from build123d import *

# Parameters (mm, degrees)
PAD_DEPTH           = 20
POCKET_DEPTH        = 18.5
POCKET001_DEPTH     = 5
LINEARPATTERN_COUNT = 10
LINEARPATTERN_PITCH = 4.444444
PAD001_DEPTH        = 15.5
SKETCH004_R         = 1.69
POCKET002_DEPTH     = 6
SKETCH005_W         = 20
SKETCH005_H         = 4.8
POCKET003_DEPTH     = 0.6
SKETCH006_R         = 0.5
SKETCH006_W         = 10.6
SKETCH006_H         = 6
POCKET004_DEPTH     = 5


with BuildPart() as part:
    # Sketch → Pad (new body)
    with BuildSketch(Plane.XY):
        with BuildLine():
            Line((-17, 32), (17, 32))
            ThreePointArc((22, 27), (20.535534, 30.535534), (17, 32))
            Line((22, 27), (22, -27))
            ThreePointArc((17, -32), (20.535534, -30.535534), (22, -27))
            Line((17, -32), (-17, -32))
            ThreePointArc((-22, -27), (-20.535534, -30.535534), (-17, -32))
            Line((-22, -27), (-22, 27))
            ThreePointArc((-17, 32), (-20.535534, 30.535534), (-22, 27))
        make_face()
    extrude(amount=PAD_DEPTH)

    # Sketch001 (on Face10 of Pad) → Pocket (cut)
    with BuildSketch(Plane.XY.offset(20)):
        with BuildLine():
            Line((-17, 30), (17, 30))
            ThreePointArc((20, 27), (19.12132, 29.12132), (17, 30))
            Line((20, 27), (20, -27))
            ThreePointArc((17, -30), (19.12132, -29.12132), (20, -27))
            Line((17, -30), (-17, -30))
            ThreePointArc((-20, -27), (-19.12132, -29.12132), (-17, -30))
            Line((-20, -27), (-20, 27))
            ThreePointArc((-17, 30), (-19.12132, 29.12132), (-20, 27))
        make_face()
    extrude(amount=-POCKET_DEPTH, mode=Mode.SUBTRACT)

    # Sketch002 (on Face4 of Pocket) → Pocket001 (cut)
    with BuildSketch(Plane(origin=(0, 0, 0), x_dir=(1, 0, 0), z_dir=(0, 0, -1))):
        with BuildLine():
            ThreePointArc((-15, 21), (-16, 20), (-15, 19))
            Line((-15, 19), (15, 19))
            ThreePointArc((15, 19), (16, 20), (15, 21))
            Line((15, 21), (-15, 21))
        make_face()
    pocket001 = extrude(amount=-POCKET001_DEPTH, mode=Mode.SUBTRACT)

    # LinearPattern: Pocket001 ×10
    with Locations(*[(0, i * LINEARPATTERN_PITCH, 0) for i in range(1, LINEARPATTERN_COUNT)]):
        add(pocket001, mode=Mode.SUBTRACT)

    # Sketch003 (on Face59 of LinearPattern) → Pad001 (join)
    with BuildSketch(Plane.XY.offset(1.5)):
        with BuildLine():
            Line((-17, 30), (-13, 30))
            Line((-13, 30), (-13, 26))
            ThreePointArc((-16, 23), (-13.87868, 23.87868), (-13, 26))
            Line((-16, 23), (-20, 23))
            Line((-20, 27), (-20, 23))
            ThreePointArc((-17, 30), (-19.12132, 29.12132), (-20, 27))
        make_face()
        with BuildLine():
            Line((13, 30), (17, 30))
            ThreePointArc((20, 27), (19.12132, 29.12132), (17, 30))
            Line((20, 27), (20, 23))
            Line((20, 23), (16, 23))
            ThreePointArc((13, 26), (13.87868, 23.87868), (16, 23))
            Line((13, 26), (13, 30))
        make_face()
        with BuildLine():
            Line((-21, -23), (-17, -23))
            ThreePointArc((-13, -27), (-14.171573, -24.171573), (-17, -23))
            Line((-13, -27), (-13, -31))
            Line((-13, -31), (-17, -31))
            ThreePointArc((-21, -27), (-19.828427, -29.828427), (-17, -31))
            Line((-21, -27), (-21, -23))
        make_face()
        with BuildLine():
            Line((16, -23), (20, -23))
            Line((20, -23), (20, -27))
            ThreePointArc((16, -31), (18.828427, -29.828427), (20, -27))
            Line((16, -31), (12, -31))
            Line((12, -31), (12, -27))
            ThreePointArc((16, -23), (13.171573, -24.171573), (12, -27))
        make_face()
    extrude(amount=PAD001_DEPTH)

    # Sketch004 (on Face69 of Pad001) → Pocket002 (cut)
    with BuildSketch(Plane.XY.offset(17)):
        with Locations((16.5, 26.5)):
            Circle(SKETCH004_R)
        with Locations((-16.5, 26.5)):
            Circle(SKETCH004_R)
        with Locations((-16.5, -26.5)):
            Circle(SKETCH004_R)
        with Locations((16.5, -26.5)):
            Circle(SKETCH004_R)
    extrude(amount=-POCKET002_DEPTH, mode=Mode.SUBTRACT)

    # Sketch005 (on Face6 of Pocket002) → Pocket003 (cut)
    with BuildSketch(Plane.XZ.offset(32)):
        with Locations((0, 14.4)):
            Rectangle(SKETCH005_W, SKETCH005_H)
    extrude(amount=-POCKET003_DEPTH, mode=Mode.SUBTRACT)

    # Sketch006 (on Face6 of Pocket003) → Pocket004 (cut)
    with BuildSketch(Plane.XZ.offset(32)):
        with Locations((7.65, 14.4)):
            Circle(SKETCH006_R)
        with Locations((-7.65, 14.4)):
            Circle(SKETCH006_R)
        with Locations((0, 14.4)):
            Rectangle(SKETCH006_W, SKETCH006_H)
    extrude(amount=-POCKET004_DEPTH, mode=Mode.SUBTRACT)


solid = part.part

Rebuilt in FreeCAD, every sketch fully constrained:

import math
import FreeCAD as App
import Part
import Sketcher
Q = App.Units.Quantity


def add_polygon(sketch, points):
    """Adds a closed chain of lines whose ends are joined by coincident constraints."""
    first, n = sketch.GeometryCount, len(points)
    for a, b in zip(points, points[1:] + points[:1]):
        sketch.addGeometry(Part.LineSegment(App.Vector(*a, 0), App.Vector(*b, 0)), False)
    for i in range(n):
        sketch.addConstraint(Sketcher.Constraint("Coincident", first + i, 2, first + (i + 1) % n, 1))

doc = App.newDocument("Part")
body = doc.addObject("PartDesign::Body", "Body")

# Sketch on XY plane
sketch1 = doc.addObject("Sketcher::SketchObject", "Sketch")
body.addObject(sketch1)
sketch1.AttachmentSupport = (doc.XY_Plane, [""])
sketch1.MapMode = "FlatFace"
sketch1.addGeometry([
    Part.LineSegment(App.Vector(17, 32, 0), App.Vector(-17, 32, 0)),  # 0
    Part.ArcOfCircle(Part.Circle(App.Vector(-17, 27, 0), App.Vector(0, 0, 1), 5), math.radians(90), math.radians(180)),  # 1
    Part.LineSegment(App.Vector(-22, 27, 0), App.Vector(-22, -27, 0)),  # 2
    Part.ArcOfCircle(Part.Circle(App.Vector(-17, -27, 0), App.Vector(0, 0, 1), 5), math.radians(180), math.radians(270)),  # 3
    Part.LineSegment(App.Vector(-17, -32, 0), App.Vector(17, -32, 0)),  # 4
    Part.ArcOfCircle(Part.Circle(App.Vector(17, -27, 0), App.Vector(0, 0, 1), 5), math.radians(-90), math.radians(0)),  # 5
    Part.LineSegment(App.Vector(22, -27, 0), App.Vector(22, 27, 0)),  # 6
    Part.ArcOfCircle(Part.Circle(App.Vector(17, 27, 0), App.Vector(0, 0, 1), 5), math.radians(0), math.radians(90)),  # 7
], False)
sketch1.addConstraint([
    Sketcher.Constraint("Tangent", 0, 2, 1, 1),
    Sketcher.Constraint("Tangent", 1, 2, 2, 1),
    Sketcher.Constraint("Tangent", 2, 2, 3, 1),
    Sketcher.Constraint("Tangent", 3, 2, 4, 1),
    Sketcher.Constraint("Tangent", 4, 2, 5, 1),
    Sketcher.Constraint("Tangent", 5, 2, 6, 1),
    Sketcher.Constraint("Tangent", 6, 2, 7, 1),
    Sketcher.Constraint("Tangent", 7, 2, 0, 1),
    Sketcher.Constraint("Horizontal", 0),
    Sketcher.Constraint("Vertical", 2),
    Sketcher.Constraint("Horizontal", 4),
    Sketcher.Constraint("Vertical", 6),
    Sketcher.Constraint("Equal", 1, 3),
    Sketcher.Constraint("Equal", 3, 5),
    Sketcher.Constraint("Equal", 5, 7),
    Sketcher.Constraint("Symmetric", 1, 3, 5, 3, -1, 1),
    Sketcher.Constraint("Radius", 1, Q("5 mm")),
    Sketcher.Constraint("DistanceX", 0, 2, 0, 1, Q("34 mm")),
    Sketcher.Constraint("DistanceY", 2, 2, 2, 1, Q("54 mm")),
])
pad1 = doc.addObject("PartDesign::Pad", "Pad")
body.addObject(pad1)
pad1.Profile = sketch1
pad1.Length = 20

# Sketch on XY plane
sketch2 = doc.addObject("Sketcher::SketchObject", "Sketch001")
body.addObject(sketch2)
sketch2.AttachmentSupport = (doc.XY_Plane, [""])
sketch2.MapMode = "FlatFace"
sketch2.AttachmentOffset = App.Placement(App.Vector(0, 0, 20), App.Rotation())
sketch2.addGeometry([
    Part.LineSegment(App.Vector(17, 30, 0), App.Vector(-17, 30, 0)),  # 0
    Part.ArcOfCircle(Part.Circle(App.Vector(-17, 27, 0), App.Vector(0, 0, 1), 3), math.radians(90), math.radians(180)),  # 1
    Part.LineSegment(App.Vector(-20, 27, 0), App.Vector(-20, -27, 0)),  # 2
    Part.ArcOfCircle(Part.Circle(App.Vector(-17, -27, 0), App.Vector(0, 0, 1), 3), math.radians(-180), math.radians(-90)),  # 3
    Part.LineSegment(App.Vector(-17, -30, 0), App.Vector(17, -30, 0)),  # 4
    Part.ArcOfCircle(Part.Circle(App.Vector(17, -27, 0), App.Vector(0, 0, 1), 3), math.radians(-90), math.radians(0)),  # 5
    Part.LineSegment(App.Vector(20, -27, 0), App.Vector(20, 27, 0)),  # 6
    Part.ArcOfCircle(Part.Circle(App.Vector(17, 27, 0), App.Vector(0, 0, 1), 3), math.radians(0), math.radians(90)),  # 7
], False)
sketch2.addConstraint([
    Sketcher.Constraint("Tangent", 0, 2, 1, 1),
    Sketcher.Constraint("Tangent", 1, 2, 2, 1),
    Sketcher.Constraint("Tangent", 2, 2, 3, 1),
    Sketcher.Constraint("Tangent", 3, 2, 4, 1),
    Sketcher.Constraint("Tangent", 4, 2, 5, 1),
    Sketcher.Constraint("Tangent", 5, 2, 6, 1),
    Sketcher.Constraint("Tangent", 6, 2, 7, 1),
    Sketcher.Constraint("Tangent", 7, 2, 0, 1),
    Sketcher.Constraint("Horizontal", 0),
    Sketcher.Constraint("Vertical", 2),
    Sketcher.Constraint("Horizontal", 4),
    Sketcher.Constraint("Vertical", 6),
    Sketcher.Constraint("Equal", 1, 3),
    Sketcher.Constraint("Equal", 3, 5),
    Sketcher.Constraint("Equal", 5, 7),
    Sketcher.Constraint("Symmetric", 1, 3, 5, 3, -1, 1),
    Sketcher.Constraint("Radius", 1, Q("3.000001 mm")),
    Sketcher.Constraint("DistanceX", 0, 2, 0, 1, Q("34 mm")),
    Sketcher.Constraint("DistanceY", 2, 2, 2, 1, Q("54 mm")),
])
pocket1 = doc.addObject("PartDesign::Pocket", "Pocket")
body.addObject(pocket1)
pocket1.Profile = sketch2
pocket1.Length = 18.5

# Sketch on XY plane
sketch3 = doc.addObject("Sketcher::SketchObject", "Sketch002")
body.addObject(sketch3)
sketch3.AttachmentSupport = (doc.XY_Plane, [""])
sketch3.MapMode = "FlatFace"
sketch3.addGeometry([
    Part.ArcOfCircle(Part.Circle(App.Vector(-15, -20, 0), App.Vector(0, 0, 1), 1), math.radians(90), math.radians(270)),
    Part.LineSegment(App.Vector(-15, -19, 0), App.Vector(15, -19, 0)),
    Part.ArcOfCircle(Part.Circle(App.Vector(15, -20, 0), App.Vector(0, 0, 1), 1), math.radians(-90), math.radians(90)),
    Part.LineSegment(App.Vector(15, -21, 0), App.Vector(-15, -21, 0)),
], False)
sketch3.addConstraint([
    Sketcher.Constraint("Tangent", 0, 1, 1, 1),
    Sketcher.Constraint("Tangent", 1, 2, 2, 2),
    Sketcher.Constraint("Tangent", 2, 1, 3, 1),
    Sketcher.Constraint("Tangent", 3, 2, 0, 2),
    Sketcher.Constraint("Horizontal", 1),
    Sketcher.Constraint("Horizontal", 3),
    Sketcher.Constraint("Radius", 0, Q("1 mm")),
    Sketcher.Constraint("DistanceX", 1, 1, 1, 2, Q("30 mm")),
    Sketcher.Constraint("DistanceX", 0, 3, -1, 1, Q("15 mm")),
    Sketcher.Constraint("DistanceY", 0, 3, -1, 1, Q("20 mm")),
])
pocket2 = doc.addObject("PartDesign::Pocket", "Pocket001")
body.addObject(pocket2)
pocket2.Profile = sketch3
pocket2.Length = 5
pocket2.Reversed = True
doc.recompute()

linearpattern = doc.addObject("PartDesign::LinearPattern", "LinearPattern")
body.addObject(linearpattern)
linearpattern.Originals = [pocket2]
linearpattern.Direction = (doc.Y_Axis, [""])
linearpattern.Mode = "offset"
linearpattern.Offset = 4.444444
linearpattern.Occurrences = 10
body.Tip = linearpattern

# Sketch on XY plane
sketch4 = doc.addObject("Sketcher::SketchObject", "Sketch003")
body.addObject(sketch4)
sketch4.AttachmentSupport = (doc.XY_Plane, [""])
sketch4.MapMode = "FlatFace"
sketch4.AttachmentOffset = App.Placement(App.Vector(0, 0, 1.5), App.Rotation())
sketch4.addGeometry([
    Part.LineSegment(App.Vector(-13, 30, 0), App.Vector(-17, 30, 0)),  # 0
    Part.ArcOfCircle(Part.Circle(App.Vector(-17, 27, 0), App.Vector(0, 0, 1), 3), math.radians(90), math.radians(180)),  # 1
    Part.LineSegment(App.Vector(-20, 27, 0), App.Vector(-20, 23, 0)),  # 2
    Part.LineSegment(App.Vector(-20, 23, 0), App.Vector(-16, 23, 0)),  # 3
    Part.ArcOfCircle(Part.Circle(App.Vector(-16, 26, 0), App.Vector(0, 0, 1), 3), math.radians(-90), math.radians(0)),  # 4
    Part.LineSegment(App.Vector(-13, 26, 0), App.Vector(-13, 30, 0)),  # 5
    Part.LineSegment(App.Vector(17, 30, 0), App.Vector(13, 30, 0)),  # 6
    Part.LineSegment(App.Vector(13, 30, 0), App.Vector(13, 26, 0)),  # 7
    Part.ArcOfCircle(Part.Circle(App.Vector(16, 26, 0), App.Vector(0, 0, 1), 3), math.radians(-180), math.radians(-90)),  # 8
    Part.LineSegment(App.Vector(16, 23, 0), App.Vector(20, 23, 0)),  # 9
    Part.LineSegment(App.Vector(20, 23, 0), App.Vector(20, 27, 0)),  # 10
    Part.ArcOfCircle(Part.Circle(App.Vector(17, 27, 0), App.Vector(0, 0, 1), 3), math.radians(0), math.radians(90)),  # 11
    Part.LineSegment(App.Vector(-17, -23, 0), App.Vector(-21, -23, 0)),  # 12
    Part.LineSegment(App.Vector(-21, -23, 0), App.Vector(-21, -27, 0)),  # 13
    Part.ArcOfCircle(Part.Circle(App.Vector(-17, -27, 0), App.Vector(0, 0, 1), 4), math.radians(-180), math.radians(-90)),  # 14
    Part.LineSegment(App.Vector(-17, -31, 0), App.Vector(-13, -31, 0)),  # 15
    Part.LineSegment(App.Vector(-13, -31, 0), App.Vector(-13, -27, 0)),  # 16
    Part.ArcOfCircle(Part.Circle(App.Vector(-17, -27, 0), App.Vector(0, 0, 1), 4), math.radians(0), math.radians(90)),  # 17
    Part.LineSegment(App.Vector(20, -23, 0), App.Vector(16, -23, 0)),  # 18
    Part.ArcOfCircle(Part.Circle(App.Vector(16, -27, 0), App.Vector(0, 0, 1), 4), math.radians(90), math.radians(180)),  # 19
    Part.LineSegment(App.Vector(12, -27, 0), App.Vector(12, -31, 0)),  # 20
    Part.LineSegment(App.Vector(12, -31, 0), App.Vector(16, -31, 0)),  # 21
    Part.ArcOfCircle(Part.Circle(App.Vector(16, -27, 0), App.Vector(0, 0, 1), 4), math.radians(-90), math.radians(0)),  # 22
    Part.LineSegment(App.Vector(20, -27, 0), App.Vector(20, -23, 0)),  # 23
], False)
sketch4.addConstraint([
    Sketcher.Constraint("Tangent", 0, 2, 1, 1),
    Sketcher.Constraint("Tangent", 1, 2, 2, 1),
    Sketcher.Constraint("Coincident", 2, 2, 3, 1),
    Sketcher.Constraint("Tangent", 3, 2, 4, 1),
    Sketcher.Constraint("Tangent", 4, 2, 5, 1),
    Sketcher.Constraint("Coincident", 5, 2, 0, 1),
    Sketcher.Constraint("Coincident", 6, 2, 7, 1),
    Sketcher.Constraint("Tangent", 7, 2, 8, 1),
    Sketcher.Constraint("Tangent", 8, 2, 9, 1),
    Sketcher.Constraint("Coincident", 9, 2, 10, 1),
    Sketcher.Constraint("Tangent", 10, 2, 11, 1),
    Sketcher.Constraint("Tangent", 11, 2, 6, 1),
    Sketcher.Constraint("Coincident", 12, 2, 13, 1),
    Sketcher.Constraint("Tangent", 13, 2, 14, 1),
    Sketcher.Constraint("Tangent", 14, 2, 15, 1),
    Sketcher.Constraint("Coincident", 15, 2, 16, 1),
    Sketcher.Constraint("Tangent", 16, 2, 17, 1),
    Sketcher.Constraint("Tangent", 17, 2, 12, 1),
    Sketcher.Constraint("Tangent", 18, 2, 19, 1),
    Sketcher.Constraint("Tangent", 19, 2, 20, 1),
    Sketcher.Constraint("Coincident", 20, 2, 21, 1),
    Sketcher.Constraint("Tangent", 21, 2, 22, 1),
    Sketcher.Constraint("Tangent", 22, 2, 23, 1),
    Sketcher.Constraint("Coincident", 23, 2, 18, 1),
    Sketcher.Constraint("Horizontal", 0),
    Sketcher.Constraint("Vertical", 2),
    Sketcher.Constraint("Horizontal", 3),
    Sketcher.Constraint("Vertical", 5),
    Sketcher.Constraint("Horizontal", 6),
    Sketcher.Constraint("Vertical", 7),
    Sketcher.Constraint("Horizontal", 9),
    Sketcher.Constraint("Vertical", 10),
    Sketcher.Constraint("Horizontal", 12),
    Sketcher.Constraint("Vertical", 13),
    Sketcher.Constraint("Horizontal", 15),
    Sketcher.Constraint("Vertical", 16),
    Sketcher.Constraint("Horizontal", 18),
    Sketcher.Constraint("Vertical", 20),
    Sketcher.Constraint("Horizontal", 21),
    Sketcher.Constraint("Vertical", 23),
    Sketcher.Constraint("Coincident", 17, 3, 14, 3),
    Sketcher.Constraint("Coincident", 22, 3, 19, 3),
    Sketcher.Constraint("Equal", 1, 4),
    Sketcher.Constraint("Equal", 4, 8),
    Sketcher.Constraint("Equal", 8, 11),
    Sketcher.Constraint("Equal", 14, 17),
    Sketcher.Constraint("Equal", 17, 19),
    Sketcher.Constraint("Equal", 19, 22),
    Sketcher.Constraint("Symmetric", 11, 3, 14, 3, -1, 1),
    Sketcher.Constraint("Symmetric", 3, 2, 18, 2, -1, 1),
    Sketcher.Constraint("Symmetric", 1, 2, 22, 2, -1, 1),
    Sketcher.Constraint("Symmetric", 4, 3, 8, 3, -2),
    Sketcher.Constraint("Symmetric", 1, 3, 11, 3, -2),
    Sketcher.Constraint("Radius", 1, Q("3.000001 mm")),
    Sketcher.Constraint("Radius", 14, Q("4 mm")),
    Sketcher.Constraint("DistanceX", 1, 3, -1, 1, Q("16.999999 mm")),
    Sketcher.Constraint("DistanceY", -1, 1, 1, 3, Q("26.999999 mm")),
])
pad2 = doc.addObject("PartDesign::Pad", "Pad001")
body.addObject(pad2)
pad2.Profile = sketch4
pad2.Length = 15.5

# Sketch on XY plane
sketch5 = doc.addObject("Sketcher::SketchObject", "Sketch004")
body.addObject(sketch5)
sketch5.AttachmentSupport = (doc.XY_Plane, [""])
sketch5.MapMode = "FlatFace"
sketch5.AttachmentOffset = App.Placement(App.Vector(0, 0, 17), App.Rotation())
sketch5.addGeometry([
    Part.Circle(App.Vector(16.5, 26.5, 0), App.Vector(0, 0, 1), 1.7),
    Part.Circle(App.Vector(-16.5, 26.5, 0), App.Vector(0, 0, 1), 1.7),
    Part.Circle(App.Vector(-16.5, -26.5, 0), App.Vector(0, 0, 1), 1.7),
    Part.Circle(App.Vector(16.5, -26.5, 0), App.Vector(0, 0, 1), 1.7),
], False)
sketch5.addConstraint([
    Sketcher.Constraint("Equal", 0, 1),
    Sketcher.Constraint("Equal", 1, 2),
    Sketcher.Constraint("Equal", 2, 3),
    Sketcher.Constraint("Symmetric", 0, 3, 2, 3, -1, 1),
    Sketcher.Constraint("Symmetric", 1, 3, 3, 3, -1, 1),
    Sketcher.Constraint("Symmetric", 0, 3, 1, 3, -2),
    Sketcher.Constraint("Diameter", 0, Q("3.38 mm")),
    Sketcher.Constraint("DistanceX", 1, 3, 0, 3, Q("33 mm")),
    Sketcher.Constraint("DistanceY", 2, 3, 1, 3, Q("53 mm")),
])
pocket3 = doc.addObject("PartDesign::Pocket", "Pocket002")
body.addObject(pocket3)
pocket3.Profile = sketch5
pocket3.Length = 6

# Sketch on XZ plane
sketch6 = doc.addObject("Sketcher::SketchObject", "Sketch005")
body.addObject(sketch6)
sketch6.AttachmentSupport = (doc.XZ_Plane, [""])
sketch6.MapMode = "FlatFace"
sketch6.AttachmentOffset = App.Placement(App.Vector(0, 0, 32), App.Rotation())
add_polygon(sketch6, [(-10, 16.8), (-10, 12), (10, 12), (10, 16.8)])  # lines 0-3
sketch6.addConstraint([
    Sketcher.Constraint("Vertical", 0),
    Sketcher.Constraint("Horizontal", 1),
    Sketcher.Constraint("Vertical", 2),
    Sketcher.Constraint("Horizontal", 3),
    Sketcher.Constraint("DistanceX", 1, 1, 1, 2, Q("20 mm")),
    Sketcher.Constraint("DistanceY", 0, 2, 0, 1, Q("4.8 mm")),
    Sketcher.Constraint("DistanceX", 0, 2, -1, 1, Q("10 mm")),
    Sketcher.Constraint("DistanceY", -1, 1, 0, 2, Q("12 mm")),
])
pocket4 = doc.addObject("PartDesign::Pocket", "Pocket003")
body.addObject(pocket4)
pocket4.Profile = sketch6
pocket4.Length = 0.6

# Sketch on XZ plane
sketch7 = doc.addObject("Sketcher::SketchObject", "Sketch006")
body.addObject(sketch7)
sketch7.AttachmentSupport = (doc.XZ_Plane, [""])
sketch7.MapMode = "FlatFace"
sketch7.AttachmentOffset = App.Placement(App.Vector(0, 0, 32), App.Rotation())
sketch7.addGeometry(Part.Circle(App.Vector(7.7, 14.4, 0), App.Vector(0, 0, 1), 0.5), False)  # 0
sketch7.addGeometry(Part.Circle(App.Vector(-7.7, 14.4, 0), App.Vector(0, 0, 1), 0.5), False)  # 1
add_polygon(sketch7, [(-5.3, 17.4), (-5.3, 11.4), (5.3, 11.4), (5.3, 17.4)])  # lines 2-5
sketch7.addConstraint([
    Sketcher.Constraint("Vertical", 2),
    Sketcher.Constraint("Horizontal", 3),
    Sketcher.Constraint("Vertical", 4),
    Sketcher.Constraint("Horizontal", 5),
    Sketcher.Constraint("Equal", 0, 1),
    Sketcher.Constraint("Symmetric", 0, 3, 1, 3, -2),
    Sketcher.Constraint("Diameter", 0, Q("1 mm")),
    Sketcher.Constraint("DistanceY", 2, 2, 2, 1, Q("6 mm")),
    Sketcher.Constraint("DistanceX", 3, 1, 3, 2, Q("10.6 mm")),
    Sketcher.Constraint("DistanceY", 2, 2, 1, 3, Q("3 mm")),
    Sketcher.Constraint("DistanceY", -1, 1, 0, 3, Q("14.4 mm")),
    Sketcher.Constraint("DistanceX", 2, 2, -1, 1, Q("5.3 mm")),
    Sketcher.Constraint("DistanceX", 1, 3, 0, 3, Q("15.3 mm")),
])
pocket5 = doc.addObject("PartDesign::Pocket", "Pocket004")
body.addObject(pocket5)
pocket5.Profile = sketch7
pocket5.Length = 5

doc.recompute()
